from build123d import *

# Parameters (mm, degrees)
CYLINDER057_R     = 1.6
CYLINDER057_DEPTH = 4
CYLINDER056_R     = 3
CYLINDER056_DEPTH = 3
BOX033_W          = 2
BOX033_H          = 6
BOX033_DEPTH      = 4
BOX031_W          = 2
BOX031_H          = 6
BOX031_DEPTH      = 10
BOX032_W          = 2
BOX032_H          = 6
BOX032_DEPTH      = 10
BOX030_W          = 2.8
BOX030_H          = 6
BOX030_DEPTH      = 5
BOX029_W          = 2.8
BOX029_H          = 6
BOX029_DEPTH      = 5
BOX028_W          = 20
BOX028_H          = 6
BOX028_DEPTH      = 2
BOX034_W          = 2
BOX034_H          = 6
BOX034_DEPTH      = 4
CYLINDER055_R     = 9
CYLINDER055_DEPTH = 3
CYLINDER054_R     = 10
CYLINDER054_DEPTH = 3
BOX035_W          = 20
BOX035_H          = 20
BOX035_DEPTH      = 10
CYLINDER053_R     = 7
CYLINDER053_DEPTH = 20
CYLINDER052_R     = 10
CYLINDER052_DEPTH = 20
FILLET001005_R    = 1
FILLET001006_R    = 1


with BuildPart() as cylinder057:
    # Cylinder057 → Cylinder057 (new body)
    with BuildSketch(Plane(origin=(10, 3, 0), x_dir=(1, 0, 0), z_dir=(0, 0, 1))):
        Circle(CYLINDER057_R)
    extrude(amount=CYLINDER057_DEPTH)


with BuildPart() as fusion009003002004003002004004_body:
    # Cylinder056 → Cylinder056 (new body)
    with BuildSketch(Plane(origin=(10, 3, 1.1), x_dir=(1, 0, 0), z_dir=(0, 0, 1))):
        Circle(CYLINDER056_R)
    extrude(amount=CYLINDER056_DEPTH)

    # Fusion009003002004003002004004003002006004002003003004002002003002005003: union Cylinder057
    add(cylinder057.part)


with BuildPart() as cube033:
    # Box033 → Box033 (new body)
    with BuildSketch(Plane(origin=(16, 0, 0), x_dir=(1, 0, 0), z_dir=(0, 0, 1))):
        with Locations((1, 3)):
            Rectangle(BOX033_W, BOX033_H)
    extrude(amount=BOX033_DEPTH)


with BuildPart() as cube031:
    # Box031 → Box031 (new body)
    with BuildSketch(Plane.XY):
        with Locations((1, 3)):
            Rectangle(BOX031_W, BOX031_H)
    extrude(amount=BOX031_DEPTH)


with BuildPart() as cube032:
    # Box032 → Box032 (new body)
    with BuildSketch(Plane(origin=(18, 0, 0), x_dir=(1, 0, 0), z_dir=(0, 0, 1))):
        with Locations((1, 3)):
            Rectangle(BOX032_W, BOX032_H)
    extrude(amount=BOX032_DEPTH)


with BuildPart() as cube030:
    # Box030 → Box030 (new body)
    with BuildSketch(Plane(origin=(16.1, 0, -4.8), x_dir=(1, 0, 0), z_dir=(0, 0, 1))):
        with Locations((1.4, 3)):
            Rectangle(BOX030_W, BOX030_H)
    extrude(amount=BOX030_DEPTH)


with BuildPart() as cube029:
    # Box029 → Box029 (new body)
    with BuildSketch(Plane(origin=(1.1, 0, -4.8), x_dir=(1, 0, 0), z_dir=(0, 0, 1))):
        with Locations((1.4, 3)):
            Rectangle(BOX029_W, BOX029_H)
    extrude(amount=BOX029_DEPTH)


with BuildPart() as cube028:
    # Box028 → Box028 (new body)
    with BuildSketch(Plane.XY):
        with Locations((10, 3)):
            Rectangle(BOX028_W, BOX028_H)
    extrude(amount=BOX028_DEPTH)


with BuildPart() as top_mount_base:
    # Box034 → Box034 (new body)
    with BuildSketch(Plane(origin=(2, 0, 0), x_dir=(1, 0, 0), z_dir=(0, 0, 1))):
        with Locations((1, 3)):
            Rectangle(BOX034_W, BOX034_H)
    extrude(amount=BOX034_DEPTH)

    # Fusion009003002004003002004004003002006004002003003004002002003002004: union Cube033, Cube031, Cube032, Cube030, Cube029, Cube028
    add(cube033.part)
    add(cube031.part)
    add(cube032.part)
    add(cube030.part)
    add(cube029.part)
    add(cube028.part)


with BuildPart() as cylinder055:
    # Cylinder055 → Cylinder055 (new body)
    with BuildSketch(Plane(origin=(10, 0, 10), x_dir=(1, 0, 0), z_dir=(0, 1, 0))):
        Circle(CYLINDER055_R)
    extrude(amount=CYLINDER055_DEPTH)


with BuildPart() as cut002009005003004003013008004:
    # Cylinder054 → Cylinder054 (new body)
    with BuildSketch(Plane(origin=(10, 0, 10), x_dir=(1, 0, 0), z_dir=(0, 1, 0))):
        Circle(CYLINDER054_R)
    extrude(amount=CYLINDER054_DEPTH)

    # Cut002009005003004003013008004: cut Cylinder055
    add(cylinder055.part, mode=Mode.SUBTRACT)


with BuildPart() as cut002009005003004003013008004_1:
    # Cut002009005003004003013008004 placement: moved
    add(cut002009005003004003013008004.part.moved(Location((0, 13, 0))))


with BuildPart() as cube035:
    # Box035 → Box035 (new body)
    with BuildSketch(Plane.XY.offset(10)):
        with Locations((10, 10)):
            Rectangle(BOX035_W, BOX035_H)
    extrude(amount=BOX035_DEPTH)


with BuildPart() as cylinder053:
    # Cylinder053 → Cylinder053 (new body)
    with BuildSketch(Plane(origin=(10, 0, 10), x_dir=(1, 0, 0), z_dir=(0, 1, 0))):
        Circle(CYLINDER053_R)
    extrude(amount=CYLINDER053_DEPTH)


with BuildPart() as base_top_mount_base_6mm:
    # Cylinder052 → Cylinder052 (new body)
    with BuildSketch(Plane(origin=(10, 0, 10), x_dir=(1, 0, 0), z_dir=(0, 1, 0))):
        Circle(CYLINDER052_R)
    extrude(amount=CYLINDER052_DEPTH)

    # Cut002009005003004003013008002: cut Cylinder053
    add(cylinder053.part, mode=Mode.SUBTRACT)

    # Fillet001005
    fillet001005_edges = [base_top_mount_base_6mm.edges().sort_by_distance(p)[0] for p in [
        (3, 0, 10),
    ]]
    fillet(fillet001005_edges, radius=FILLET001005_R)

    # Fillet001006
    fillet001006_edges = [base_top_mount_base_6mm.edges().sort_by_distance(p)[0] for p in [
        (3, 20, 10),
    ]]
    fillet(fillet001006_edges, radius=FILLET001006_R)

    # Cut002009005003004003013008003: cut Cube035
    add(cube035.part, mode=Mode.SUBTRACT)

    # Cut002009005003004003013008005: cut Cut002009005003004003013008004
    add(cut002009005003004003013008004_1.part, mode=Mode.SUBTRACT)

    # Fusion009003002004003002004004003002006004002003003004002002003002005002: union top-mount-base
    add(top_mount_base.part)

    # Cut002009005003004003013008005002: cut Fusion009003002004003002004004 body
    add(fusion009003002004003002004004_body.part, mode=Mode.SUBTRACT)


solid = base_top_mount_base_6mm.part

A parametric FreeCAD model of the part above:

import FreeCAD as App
import Part
import Sketcher
from FreeCAD import Vector
Q = App.Units.Quantity


def edges_at(feature, points):
    """Names of the edges that pass closest to the given points."""
    edges = feature.Shape.Edges
    near = lambda p: min(range(len(edges)), key=lambda i: edges[i].distToShape(Part.Vertex(*p))[0])
    return sorted({f"Edge{near(p) + 1}" for p in points})


def add_polygon(sketch, points):
    """Adds a closed chain of lines whose ends are joined by coincident constraints."""
    first, n = sketch.GeometryCount, len(points)
    for a, b in zip(points, points[1:] + points[:1]):
        sketch.addGeometry(Part.LineSegment(App.Vector(*a, 0), App.Vector(*b, 0)), False)
    for i in range(n):
        sketch.addConstraint(Sketcher.Constraint("Coincident", first + i, 2, first + (i + 1) % n, 1))

doc = App.newDocument("Part")
params = doc.addObject("Spreadsheet::Sheet", "Params")
for row, (alias, value) in enumerate([
    ("sketch1_diameter", "3.2 mm"),
    ("pad1_length", "4 mm"),
    ("sketch2_diameter", "6 mm"),
    ("pad2_length", "3 mm"),
    ("sketch3_width", "2 mm"),
    ("sketch3_height", "6 mm"),
    ("pad3_length", "4 mm"),
    ("sketch4_width", "2 mm"),
    ("sketch4_height", "6 mm"),
    ("pad4_length", "10 mm"),
    ("sketch5_width", "2 mm"),
    ("sketch5_height", "6 mm"),
    ("pad5_length", "10 mm"),
    ("sketch6_height", "6 mm"),
    ("sketch6_width", "2.8 mm"),
    ("pad6_length", "5 mm"),
    ("sketch7_height", "6 mm"),
    ("sketch7_width", "2.8 mm"),
    ("pad7_length", "5 mm"),
    ("sketch8_width", "20 mm"),
    ("sketch8_height", "6 mm"),
    ("pad8_length", "2 mm"),
    ("sketch9_width", "2 mm"),
    ("sketch9_height", "6 mm"),
    ("pad9_length", "4 mm"),
    ("sketch10_diameter", "18 mm"),
    ("pad10_length", "3 mm"),
    ("sketch11_diameter", "20 mm"),
    ("pad11_length", "3 mm"),
    ("sketch12_width", "20 mm"),
    ("pad12_length", "10 mm"),
    ("sketch13_diameter", "14 mm"),
    ("pad13_length", "20 mm"),
    ("sketch14_diameter", "20 mm"),
    ("pad14_length", "20 mm"),
    ("fillet_radius", "1 mm"),
    ("fillet2_radius", "1 mm"),
], start=1):
    params.set(f"A{row}", alias)
    params.set(f"B{row}", "=" + value)
    params.setAlias(f"B{row}", alias)

body = doc.addObject("PartDesign::Body", "Body")

# Sketch on XY plane
sketch1 = body.newObject("Sketcher::SketchObject", "Sketch")
sketch1.AttachmentSupport = (doc.getObject("XY_Plane"), [""])
sketch1.MapMode = "FlatFace"
sketch1.addGeometry(Part.Circle(Vector(10, 3, 0), Vector(0, 0, 1), 1.6), False)
sketch1.addConstraint([
    Sketcher.Constraint("Diameter", 0, Q("3.2 mm")),
    Sketcher.Constraint("DistanceX", -1, 1, 0, 3, Q("10 mm")),
    Sketcher.Constraint("DistanceY", -1, 1, 0, 3, Q("3 mm")),
])
sketch1.setExpression("Constraints[0]", "Params.sketch1_diameter")
pad1 = body.newObject("PartDesign::Pad", "Pad")
pad1.Profile = sketch1
pad1.setExpression("Length", "Params.pad1_length")
body2 = doc.addObject("PartDesign::Body", "Body001")

# Sketch on XY plane
sketch2 = body2.newObject("Sketcher::SketchObject", "Sketch001")
sketch2.AttachmentSupport = (doc.getObject("XY_Plane001"), [""])
sketch2.MapMode = "FlatFace"
sketch2.AttachmentOffset = App.Placement(Vector(0, 0, 1.1), App.Rotation())
sketch2.addGeometry(Part.Circle(Vector(10, 3, 0), Vector(0, 0, 1), 3), False)
sketch2.addConstraint([
    Sketcher.Constraint("Diameter", 0, Q("6 mm")),
    Sketcher.Constraint("DistanceX", -1, 1, 0, 3, Q("10 mm")),
    Sketcher.Constraint("DistanceY", -1, 1, 0, 3, Q("3 mm")),
])
sketch2.setExpression("Constraints[0]", "Params.sketch2_diameter")
pad2 = body2.newObject("PartDesign::Pad", "Pad001")
pad2.Profile = sketch2
pad2.setExpression("Length", "Params.pad2_length")
doc.recompute()

boolean = body2.newObject("PartDesign::Boolean", "Boolean")
boolean.Type = "Fuse"
boolean.addObjects([body])
body3 = doc.addObject("PartDesign::Body", "Body002")

# Sketch on XY plane
sketch3 = body3.newObject("Sketcher::SketchObject", "Sketch002")
sketch3.AttachmentSupport = (doc.getObject("XY_Plane002"), [""])
sketch3.MapMode = "FlatFace"
add_polygon(sketch3, [(16, 6), (16, 0), (18, 0), (18, 6)])  # lines 0-3
sketch3.addConstraint([
    Sketcher.Constraint("Vertical", 0),
    Sketcher.Constraint("Horizontal", 1),
    Sketcher.Constraint("Vertical", 2),
    Sketcher.Constraint("Horizontal", 3),
    Sketcher.Constraint("PointOnObject", 0, 2, -1),
    Sketcher.Constraint("DistanceX", 1, 1, 1, 2, Q("2 mm")),
    Sketcher.Constraint("DistanceY", 0, 2, 0, 1, Q("6 mm")),
    Sketcher.Constraint("DistanceX", -1, 1, 0, 2, Q("16 mm")),
])
sketch3.setExpression("Constraints[9]", "Params.sketch3_width")
sketch3.setExpression("Constraints[10]", "Params.sketch3_height")
pad3 = body3.newObject("PartDesign::Pad", "Pad002")
pad3.Profile = sketch3
pad3.setExpression("Length", "Params.pad3_length")
body4 = doc.addObject("PartDesign::Body", "Body003")

# Sketch on XY plane
sketch4 = body4.newObject("Sketcher::SketchObject", "Sketch003")
sketch4.AttachmentSupport = (doc.getObject("XY_Plane003"), [""])
sketch4.MapMode = "FlatFace"
add_polygon(sketch4, [(0, 6), (0, 0), (2, 0), (2, 6)])  # lines 0-3
sketch4.addConstraint([
    Sketcher.Constraint("Vertical", 0),
    Sketcher.Constraint("Horizontal", 1),
    Sketcher.Constraint("Vertical", 2),
    Sketcher.Constraint("Horizontal", 3),
    Sketcher.Constraint("Coincident", 0, 2, -1, 1),
    Sketcher.Constraint("DistanceX", 1, 1, 1, 2, Q("2 mm")),
    Sketcher.Constraint("DistanceY", 0, 2, 0, 1, Q("6 mm")),
])
sketch4.setExpression("Constraints[9]", "Params.sketch4_width")
sketch4.setExpression("Constraints[10]", "Params.sketch4_height")
pad4 = body4.newObject("PartDesign::Pad", "Pad003")
pad4.Profile = sketch4
pad4.setExpression("Length", "Params.pad4_length")
body5 = doc.addObject("PartDesign::Body", "Body004")

# Sketch on XY plane
sketch5 = body5.newObject("Sketcher::SketchObject", "Sketch004")
sketch5.AttachmentSupport = (doc.getObject("XY_Plane004"), [""])
sketch5.MapMode = "FlatFace"
add_polygon(sketch5, [(18, 6), (18, 0), (20, 0), (20, 6)])  # lines 0-3
sketch5.addConstraint([
    Sketcher.Constraint("Vertical", 0),
    Sketcher.Constraint("Horizontal", 1),
    Sketcher.Constraint("Vertical", 2),
    Sketcher.Constraint("Horizontal", 3),
    Sketcher.Constraint("PointOnObject", 0, 2, -1),
    Sketcher.Constraint("DistanceX", 1, 1, 1, 2, Q("2 mm")),
    Sketcher.Constraint("DistanceY", 0, 2, 0, 1, Q("6 mm")),
    Sketcher.Constraint("DistanceX", -1, 1, 0, 2, Q("18 mm")),
])
sketch5.setExpression("Constraints[9]", "Params.sketch5_width")
sketch5.setExpression("Constraints[10]", "Params.sketch5_height")
pad5 = body5.newObject("PartDesign::Pad", "Pad004")
pad5.Profile = sketch5
pad5.setExpression("Length", "Params.pad5_length")
body6 = doc.addObject("PartDesign::Body", "Body005")

# Sketch on XY plane
sketch6 = body6.newObject("Sketcher::SketchObject", "Sketch005")
sketch6.AttachmentSupport = (doc.getObject("XY_Plane005"), [""])
sketch6.MapMode = "FlatFace"
sketch6.AttachmentOffset = App.Placement(Vector(0, 0, -4.8), App.Rotation())
add_polygon(sketch6, [(16.1, 6), (16.1, 0), (18.9, 0), (18.9, 6)])  # lines 0-3
sketch6.addConstraint([
    Sketcher.Constraint("Vertical", 0),
    Sketcher.Constraint("Horizontal", 1),
    Sketcher.Constraint("Vertical", 2),
    Sketcher.Constraint("Horizontal", 3),
    Sketcher.Constraint("PointOnObject", 0, 2, -1),
    Sketcher.Constraint("DistanceY", 0, 2, 0, 1, Q("6 mm")),
    Sketcher.Constraint("DistanceX", 1, 1, 1, 2, Q("2.8 mm")),
    Sketcher.Constraint("DistanceX", -1, 1, 0, 2, Q("16.1 mm")),
])
sketch6.setExpression("Constraints[9]", "Params.sketch6_height")
sketch6.setExpression("Constraints[10]", "Params.sketch6_width")
pad6 = body6.newObject("PartDesign::Pad", "Pad005")
pad6.Profile = sketch6
pad6.setExpression("Length", "Params.pad6_length")
body7 = doc.addObject("PartDesign::Body", "Body006")

# Sketch on XY plane
sketch7 = body7.newObject("Sketcher::SketchObject", "Sketch006")
sketch7.AttachmentSupport = (doc.getObject("XY_Plane006"), [""])
sketch7.MapMode = "FlatFace"
sketch7.AttachmentOffset = App.Placement(Vector(0, 0, -4.8), App.Rotation())
add_polygon(sketch7, [(1.1, 6), (1.1, 0), (3.9, 0), (3.9, 6)])  # lines 0-3
sketch7.addConstraint([
    Sketcher.Constraint("Vertical", 0),
    Sketcher.Constraint("Horizontal", 1),
    Sketcher.Constraint("Vertical", 2),
    Sketcher.Constraint("Horizontal", 3),
    Sketcher.Constraint("PointOnObject", 0, 2, -1),
    Sketcher.Constraint("DistanceY", 0, 2, 0, 1, Q("6 mm")),
    Sketcher.Constraint("DistanceX", 1, 1, 1, 2, Q("2.8 mm")),
    Sketcher.Constraint("DistanceX", -1, 1, 0, 2, Q("1.1 mm")),
])
sketch7.setExpression("Constraints[9]", "Params.sketch7_height")
sketch7.setExpression("Constraints[10]", "Params.sketch7_width")
pad7 = body7.newObject("PartDesign::Pad", "Pad006")
pad7.Profile = sketch7
pad7.setExpression("Length", "Params.pad7_length")
body8 = doc.addObject("PartDesign::Body", "Body007")

# Sketch on XY plane
sketch8 = body8.newObject("Sketcher::SketchObject", "Sketch007")
sketch8.AttachmentSupport = (doc.getObject("XY_Plane007"), [""])
sketch8.MapMode = "FlatFace"
add_polygon(sketch8, [(0, 6), (0, 0), (20, 0), (20, 6)])  # lines 0-3
sketch8.addConstraint([
    Sketcher.Constraint("Vertical", 0),
    Sketcher.Constraint("Horizontal", 1),
    Sketcher.Constraint("Vertical", 2),
    Sketcher.Constraint("Horizontal", 3),
    Sketcher.Constraint("Coincident", 0, 2, -1, 1),
    Sketcher.Constraint("DistanceX", 1, 1, 1, 2, Q("20 mm")),
    Sketcher.Constraint("DistanceY", 0, 2, 0, 1, Q("6 mm")),
])
sketch8.setExpression("Constraints[9]", "Params.sketch8_width")
sketch8.setExpression("Constraints[10]", "Params.sketch8_height")
pad8 = body8.newObject("PartDesign::Pad", "Pad007")
pad8.Profile = sketch8
pad8.setExpression("Length", "Params.pad8_length")
body9 = doc.addObject("PartDesign::Body", "Body008")
body9.AllowCompound = True

# Sketch on XY plane
sketch9 = body9.newObject("Sketcher::SketchObject", "Sketch008")
sketch9.AttachmentSupport = (doc.getObject("XY_Plane008"), [""])
sketch9.MapMode = "FlatFace"
add_polygon(sketch9, [(2, 6), (2, 0), (4, 0), (4, 6)])  # lines 0-3
sketch9.addConstraint([
    Sketcher.Constraint("Vertical", 0),
    Sketcher.Constraint("Horizontal", 1),
    Sketcher.Constraint("Vertical", 2),
    Sketcher.Constraint("Horizontal", 3),
    Sketcher.Constraint("PointOnObject", 0, 2, -1),
    Sketcher.Constraint("DistanceX", 1, 1, 1, 2, Q("2 mm")),
    Sketcher.Constraint("DistanceY", 0, 2, 0, 1, Q("6 mm")),
    Sketcher.Constraint("DistanceX", -1, 1, 0, 2, Q("2 mm")),
])
sketch9.setExpression("Constraints[9]", "Params.sketch9_width")
sketch9.setExpression("Constraints[10]", "Params.sketch9_height")
pad9 = body9.newObject("PartDesign::Pad", "Pad008")
pad9.Profile = sketch9
pad9.setExpression("Length", "Params.pad9_length")
doc.recompute()

boolean2 = body9.newObject("PartDesign::Boolean", "Boolean001")
boolean2.Type = "Fuse"
boolean2.addObjects([body3])
doc.recompute()

boolean3 = body9.newObject("PartDesign::Boolean", "Boolean002")
boolean3.Type = "Fuse"
boolean3.addObjects([body4])
doc.recompute()

boolean4 = body9.newObject("PartDesign::Boolean", "Boolean003")
boolean4.Type = "Fuse"
boolean4.addObjects([body5])
doc.recompute()

boolean5 = body9.newObject("PartDesign::Boolean", "Boolean004")
boolean5.Type = "Fuse"
boolean5.addObjects([body6])
doc.recompute()

boolean6 = body9.newObject("PartDesign::Boolean", "Boolean005")
boolean6.Type = "Fuse"
boolean6.addObjects([body7])
doc.recompute()

boolean7 = body9.newObject("PartDesign::Boolean", "Boolean006")
boolean7.Type = "Fuse"
boolean7.addObjects([body8])
body10 = doc.addObject("PartDesign::Body", "Body009")

# Sketch on XZ plane
sketch10 = body10.newObject("Sketcher::SketchObject", "Sketch009")
sketch10.AttachmentSupport = (doc.getObject("XZ_Plane009"), [""])
sketch10.MapMode = "FlatFace"
sketch10.addGeometry(Part.Circle(Vector(10, 10, 0), Vector(0, 0, 1), 9), False)
sketch10.addConstraint([
    Sketcher.Constraint("Diameter", 0, Q("18 mm")),
    Sketcher.Constraint("DistanceX", -1, 1, 0, 3, Q("10 mm")),
    Sketcher.Constraint("DistanceY", -1, 1, 0, 3, Q("10 mm")),
])
sketch10.setExpression("Constraints[0]", "Params.sketch10_diameter")
pad10 = body10.newObject("PartDesign::Pad", "Pad009")
pad10.Profile = sketch10
pad10.setExpression("Length", "Params.pad10_length")
pad10.Reversed = True
body11 = doc.addObject("PartDesign::Body", "Body010")

# Sketch on XZ plane
sketch11 = body11.newObject("Sketcher::SketchObject", "Sketch010")
sketch11.AttachmentSupport = (doc.getObject("XZ_Plane010"), [""])
sketch11.MapMode = "FlatFace"
sketch11.addGeometry(Part.Circle(Vector(10, 10, 0), Vector(0, 0, 1), 10), False)
sketch11.addConstraint([
    Sketcher.Constraint("Diameter", 0, Q("20 mm")),
    Sketcher.Constraint("DistanceX", -1, 1, 0, 3, Q("10 mm")),
    Sketcher.Constraint("DistanceY", -1, 1, 0, 3, Q("10 mm")),
])
sketch11.setExpression("Constraints[0]", "Params.sketch11_diameter")
pad11 = body11.newObject("PartDesign::Pad", "Pad010")
pad11.Profile = sketch11
pad11.setExpression("Length", "Params.pad11_length")
pad11.Reversed = True
doc.recompute()

boolean8 = body11.newObject("PartDesign::Boolean", "Boolean007")
boolean8.Type = "Cut"
boolean8.addObjects([body10])
body12 = doc.addObject("PartDesign::Body", "Body011")
doc.recompute()

body11.Placement = App.Placement(Vector(0, 13, 0), App.Rotation(Vector(0, 0, 1), 0))
boolean9 = body12.newObject("PartDesign::Boolean", "Boolean008")
boolean9.Type = "Fuse"
boolean9.addObjects([body11])
body13 = doc.addObject("PartDesign::Body", "Body012")

# Sketch on XY plane
sketch12 = body13.newObject("Sketcher::SketchObject", "Sketch011")
sketch12.AttachmentSupport = (doc.getObject("XY_Plane012"), [""])
sketch12.MapMode = "FlatFace"
sketch12.AttachmentOffset = App.Placement(Vector(0, 0, 10), App.Rotation())
add_polygon(sketch12, [(0, 20), (0, 0), (20, 0), (20, 20)])  # lines 0-3
sketch12.addConstraint([
    Sketcher.Constraint("Vertical", 0),
    Sketcher.Constraint("Horizontal", 1),
    Sketcher.Constraint("Vertical", 2),
    Sketcher.Constraint("Horizontal", 3),
    Sketcher.Constraint("Coincident", 0, 2, -1, 1),
    Sketcher.Constraint("Equal", 3, 0),
    Sketcher.Constraint("DistanceX", 1, 1, 1, 2, Q("20 mm")),
])
sketch12.setExpression("Constraints[10]", "Params.sketch12_width")
pad12 = body13.newObject("PartDesign::Pad", "Pad011")
pad12.Profile = sketch12
pad12.setExpression("Length", "Params.pad12_length")
body14 = doc.addObject("PartDesign::Body", "Body013")

# Sketch on XZ plane
sketch13 = body14.newObject("Sketcher::SketchObject", "Sketch012")
sketch13.AttachmentSupport = (doc.getObject("XZ_Plane013"), [""])
sketch13.MapMode = "FlatFace"
sketch13.addGeometry(Part.Circle(Vector(10, 10, 0), Vector(0, 0, 1), 7), False)
sketch13.addConstraint([
    Sketcher.Constraint("Diameter", 0, Q("14 mm")),
    Sketcher.Constraint("DistanceX", -1, 1, 0, 3, Q("10 mm")),
    Sketcher.Constraint("DistanceY", -1, 1, 0, 3, Q("10 mm")),
])
sketch13.setExpression("Constraints[0]", "Params.sketch13_diameter")
pad13 = body14.newObject("PartDesign::Pad", "Pad012")
pad13.Profile = sketch13
pad13.setExpression("Length", "Params.pad13_length")
pad13.Reversed = True
body15 = doc.addObject("PartDesign::Body", "Body014")

# Sketch on XZ plane
sketch14 = body15.newObject("Sketcher::SketchObject", "Sketch013")
sketch14.AttachmentSupport = (doc.getObject("XZ_Plane014"), [""])
sketch14.MapMode = "FlatFace"
sketch14.addGeometry(Part.Circle(Vector(10, 10, 0), Vector(0, 0, 1), 10), False)
sketch14.addConstraint([
    Sketcher.Constraint("Diameter", 0, Q("20 mm")),
    Sketcher.Constraint("DistanceX", -1, 1, 0, 3, Q("10 mm")),
    Sketcher.Constraint("DistanceY", -1, 1, 0, 3, Q("10 mm")),
])
sketch14.setExpression("Constraints[0]", "Params.sketch14_diameter")
pad14 = body15.newObject("PartDesign::Pad", "Pad013")
pad14.Profile = sketch14
pad14.setExpression("Length", "Params.pad14_length")
pad14.Reversed = True
doc.recompute()

boolean10 = body15.newObject("PartDesign::Boolean", "Boolean009")
boolean10.Type = "Cut"
boolean10.addObjects([body14])
doc.recompute()

fillet = body15.newObject("PartDesign::Fillet", "Fillet")
fillet.Base = (boolean10, edges_at(boolean10, [(3, 0, 10)]))
fillet.setExpression("Radius", "Params.fillet_radius")
doc.recompute()

fillet2 = body15.newObject("PartDesign::Fillet", "Fillet001")
fillet2.Base = (fillet, edges_at(fillet, [(3, 20, 10)]))
fillet2.setExpression("Radius", "Params.fillet2_radius")
doc.recompute()

boolean11 = body15.newObject("PartDesign::Boolean", "Boolean010")
boolean11.Type = "Cut"
boolean11.addObjects([body13])
doc.recompute()

boolean12 = body15.newObject("PartDesign::Boolean", "Boolean011")
boolean12.Type = "Cut"
boolean12.addObjects([body12])
doc.recompute()

boolean13 = body15.newObject("PartDesign::Boolean", "Boolean012")
boolean13.Type = "Fuse"
boolean13.addObjects([body9])
doc.recompute()

boolean14 = body15.newObject("PartDesign::Boolean", "Boolean013")
boolean14.Type = "Cut"
boolean14.addObjects([body2])

doc.recompute()
